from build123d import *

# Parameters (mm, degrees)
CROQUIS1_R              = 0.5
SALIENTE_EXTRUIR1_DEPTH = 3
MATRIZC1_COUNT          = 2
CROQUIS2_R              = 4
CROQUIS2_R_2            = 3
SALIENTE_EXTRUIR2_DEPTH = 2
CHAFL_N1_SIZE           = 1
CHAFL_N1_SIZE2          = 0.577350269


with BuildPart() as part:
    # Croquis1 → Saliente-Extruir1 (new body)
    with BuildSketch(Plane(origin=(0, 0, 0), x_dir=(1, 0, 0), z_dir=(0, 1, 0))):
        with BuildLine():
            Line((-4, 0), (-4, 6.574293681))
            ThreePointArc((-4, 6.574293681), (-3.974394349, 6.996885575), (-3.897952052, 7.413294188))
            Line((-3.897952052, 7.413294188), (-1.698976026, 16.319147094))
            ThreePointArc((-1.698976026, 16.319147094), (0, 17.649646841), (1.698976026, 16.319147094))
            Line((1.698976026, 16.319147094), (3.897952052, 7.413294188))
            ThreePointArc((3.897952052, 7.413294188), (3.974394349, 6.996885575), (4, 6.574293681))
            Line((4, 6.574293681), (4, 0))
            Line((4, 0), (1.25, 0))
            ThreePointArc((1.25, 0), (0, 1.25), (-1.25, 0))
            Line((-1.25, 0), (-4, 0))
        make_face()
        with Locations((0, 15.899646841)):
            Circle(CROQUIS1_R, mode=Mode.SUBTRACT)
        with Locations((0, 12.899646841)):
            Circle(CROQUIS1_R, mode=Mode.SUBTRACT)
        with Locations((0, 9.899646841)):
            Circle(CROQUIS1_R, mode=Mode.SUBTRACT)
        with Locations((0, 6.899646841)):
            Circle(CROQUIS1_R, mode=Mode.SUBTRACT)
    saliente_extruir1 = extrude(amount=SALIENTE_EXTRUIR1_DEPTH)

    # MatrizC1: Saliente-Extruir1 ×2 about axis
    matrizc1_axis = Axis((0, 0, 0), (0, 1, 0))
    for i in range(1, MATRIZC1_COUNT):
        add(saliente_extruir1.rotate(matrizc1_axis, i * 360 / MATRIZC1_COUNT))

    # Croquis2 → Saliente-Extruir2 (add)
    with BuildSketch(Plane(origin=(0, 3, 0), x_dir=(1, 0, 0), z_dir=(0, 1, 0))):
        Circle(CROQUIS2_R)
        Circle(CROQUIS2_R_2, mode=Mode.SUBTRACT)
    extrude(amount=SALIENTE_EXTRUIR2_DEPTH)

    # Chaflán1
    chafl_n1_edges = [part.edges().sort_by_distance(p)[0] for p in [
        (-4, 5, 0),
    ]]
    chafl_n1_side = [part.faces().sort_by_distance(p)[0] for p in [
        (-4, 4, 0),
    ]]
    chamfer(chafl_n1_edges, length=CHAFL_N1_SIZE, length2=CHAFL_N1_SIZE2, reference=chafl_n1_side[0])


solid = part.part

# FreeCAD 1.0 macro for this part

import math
import FreeCAD as App
import Part
import Sketcher
Q = App.Units.Quantity


def edges_at(feature, points):
    """Names of the edges that pass closest to the given points."""
    edges = feature.Shape.Edges
    near = lambda p: min(range(len(edges)), key=lambda i: edges[i].distToShape(Part.Vertex(*p))[0])
    return sorted({f"Edge{near(p) + 1}" for p in points})

doc = App.newDocument("Part")
body = doc.addObject("PartDesign::Body", "Body")

sketch1 = body.newObject("Sketcher::SketchObject", "Sketch")
sketch1.AttachmentSupport = (doc.getObject("XZ_Plane"), [""])
sketch1.MapMode = "FlatFace"
sketch1.addGeometry([
    Part.LineSegment(App.Vector(-4, -6.6, 0), App.Vector(-4, 0, 0)),
    Part.LineSegment(App.Vector(-4, 0, 0), App.Vector(-1.2, 0, 0)),
    Part.ArcOfCircle(Part.Circle(App.Vector(0, 0, 0), App.Vector(0, 0, 1), 1.2), math.radians(180), math.radians(360)),
    Part.LineSegment(App.Vector(1.2, 0, 0), App.Vector(4, 0, 0)),
    Part.LineSegment(App.Vector(4, 0, 0), App.Vector(4, -6.6, 0)),
    Part.ArcOfCircle(Part.Circle(App.Vector(0.5, -6.6, 0), App.Vector(0, 0, 1), 3.5), math.radians(-13.87), math.radians(0)),
    Part.LineSegment(App.Vector(3.9, -7.4, 0), App.Vector(1.7, -16.3, 0)),
    Part.ArcOfCircle(Part.Circle(App.Vector(0, -15.9, 0), App.Vector(0, 0, 1), 1.8), math.radians(-166), math.radians(-14)),
    Part.LineSegment(App.Vector(-1.7, -16.3, 0), App.Vector(-3.9, -7.4, 0)),
    Part.ArcOfCircle(Part.Circle(App.Vector(-0.5, -6.6, 0), App.Vector(0, 0, 1), 3.5), math.radians(180), math.radians(193.87)),
    Part.Circle(App.Vector(0, -6.9, 0), App.Vector(0, 0, 1), 0.5),
    Part.Circle(App.Vector(0, -9.9, 0), App.Vector(0, 0, 1), 0.5),
    Part.Circle(App.Vector(0, -12.9, 0), App.Vector(0, 0, 1), 0.5),
    Part.Circle(App.Vector(0, -15.9, 0), App.Vector(0, 0, 1), 0.5),
], False)
sketch1.addConstraint([
    Sketcher.Constraint("Coincident", 0, 2, 1, 1),
    Sketcher.Constraint("Coincident", 1, 2, 2, 1),
    Sketcher.Constraint("Coincident", 2, 2, 3, 1),
    Sketcher.Constraint("Coincident", 3, 2, 4, 1),
    Sketcher.Constraint("Tangent", 4, 2, 5, 2),
    Sketcher.Constraint("Tangent", 5, 1, 6, 1),
    Sketcher.Constraint("Tangent", 6, 2, 7, 2),
    Sketcher.Constraint("Tangent", 7, 1, 8, 1),
    Sketcher.Constraint("Tangent", 8, 2, 9, 2),
    Sketcher.Constraint("Tangent", 9, 1, 0, 1),
    Sketcher.Constraint("Vertical", 0),
    Sketcher.Constraint("Horizontal", 1),
    Sketcher.Constraint("Horizontal", 3),
    Sketcher.Constraint("Vertical", 4),
    Sketcher.Constraint("Coincident", 2, 3, -1, 1),
    Sketcher.Constraint("Coincident", 13, 3, 7, 3),
    Sketcher.Constraint("Equal", 5, 9),
    Sketcher.Constraint("Equal", 10, 11),
    Sketcher.Constraint("Equal", 11, 12),
    Sketcher.Constraint("Equal", 12, 13),
    Sketcher.Constraint("Symmetric", 0, 2, 3, 2, -1, 1),
    Sketcher.Constraint("Symmetric", 6, 2, 7, 1, -2),
    Sketcher.Constraint("PointOnObject", 10, 3, -2),
    Sketcher.Constraint("PointOnObject", 11, 3, -2),
    Sketcher.Constraint("PointOnObject", 12, 3, -2),
    Sketcher.Constraint("PointOnObject", 0, 2, -1),
    Sketcher.Constraint("Diameter", 10, Q("1 mm")),
    Sketcher.Constraint("Radius", 5, Q("3.5 mm")),
    Sketcher.Constraint("Radius", 2, Q("1.25 mm")),
    Sketcher.Constraint("Radius", 7, Q("1.75 mm")),
    Sketcher.Constraint("DistanceX", 0, 2, -1, 1, Q("4 mm")),
    Sketcher.Constraint("DistanceY", 7, 3, 10, 3, Q("9 mm")),
    Sketcher.Constraint("DistanceY", 11, 3, 10, 3, Q("3 mm")),
    Sketcher.Constraint("DistanceY", 7, 3, 12, 3, Q("3 mm")),
    Sketcher.Constraint("DistanceY", 5, 1, 4, 2, Q("0.839001 mm")),
    Sketcher.Constraint("DistanceY", 0, 1, 0, 2, Q("6.574294 mm")),
])
pad1 = body.newObject("PartDesign::Pad", "Pad")
pad1.Profile = sketch1
pad1.Length = 3
pad1.Reversed = True
doc.recompute()

polarpattern = body.newObject("PartDesign::PolarPattern", "PolarPattern")
polarpattern.Originals = [pad1]
polarpattern.Axis = (doc.getObject("Y_Axis"), [""])
polarpattern.Angle = 360
polarpattern.Occurrences = 2
body.Tip = polarpattern

sketch2 = body.newObject("Sketcher::SketchObject", "Sketch001")
sketch2.AttachmentSupport = (doc.getObject("XZ_Plane"), [""])
sketch2.MapMode = "FlatFace"
sketch2.AttachmentOffset = App.Placement(App.Vector(0, 0, -3), App.Rotation())
sketch2.addGeometry([
    Part.Circle(App.Vector(0, 0, 0), App.Vector(0, 0, 1), 4),
    Part.Circle(App.Vector(0, 0, 0), App.Vector(0, 0, 1), 3),
], False)
sketch2.addConstraint([
    Sketcher.Constraint("Coincident", 0, 3, -1, 1),
    Sketcher.Constraint("Coincident", 1, 3, -1, 1),
    Sketcher.Constraint("Diameter", 0, Q("8 mm")),
    Sketcher.Constraint("Diameter", 1, Q("6 mm")),
])
pad2 = body.newObject("PartDesign::Pad", "Pad001")
pad2.Profile = sketch2
pad2.Length = 2
pad2.Reversed = True
doc.recompute()

chamfer = body.newObject("PartDesign::Chamfer", "Chamfer")
chamfer.Base = (pad2, edges_at(pad2, [(-4, 5, 0)]))
chamfer.ChamferType = "Two distances"
chamfer.Size = 1
chamfer.Size2 = 0.57735

doc.recompute()
